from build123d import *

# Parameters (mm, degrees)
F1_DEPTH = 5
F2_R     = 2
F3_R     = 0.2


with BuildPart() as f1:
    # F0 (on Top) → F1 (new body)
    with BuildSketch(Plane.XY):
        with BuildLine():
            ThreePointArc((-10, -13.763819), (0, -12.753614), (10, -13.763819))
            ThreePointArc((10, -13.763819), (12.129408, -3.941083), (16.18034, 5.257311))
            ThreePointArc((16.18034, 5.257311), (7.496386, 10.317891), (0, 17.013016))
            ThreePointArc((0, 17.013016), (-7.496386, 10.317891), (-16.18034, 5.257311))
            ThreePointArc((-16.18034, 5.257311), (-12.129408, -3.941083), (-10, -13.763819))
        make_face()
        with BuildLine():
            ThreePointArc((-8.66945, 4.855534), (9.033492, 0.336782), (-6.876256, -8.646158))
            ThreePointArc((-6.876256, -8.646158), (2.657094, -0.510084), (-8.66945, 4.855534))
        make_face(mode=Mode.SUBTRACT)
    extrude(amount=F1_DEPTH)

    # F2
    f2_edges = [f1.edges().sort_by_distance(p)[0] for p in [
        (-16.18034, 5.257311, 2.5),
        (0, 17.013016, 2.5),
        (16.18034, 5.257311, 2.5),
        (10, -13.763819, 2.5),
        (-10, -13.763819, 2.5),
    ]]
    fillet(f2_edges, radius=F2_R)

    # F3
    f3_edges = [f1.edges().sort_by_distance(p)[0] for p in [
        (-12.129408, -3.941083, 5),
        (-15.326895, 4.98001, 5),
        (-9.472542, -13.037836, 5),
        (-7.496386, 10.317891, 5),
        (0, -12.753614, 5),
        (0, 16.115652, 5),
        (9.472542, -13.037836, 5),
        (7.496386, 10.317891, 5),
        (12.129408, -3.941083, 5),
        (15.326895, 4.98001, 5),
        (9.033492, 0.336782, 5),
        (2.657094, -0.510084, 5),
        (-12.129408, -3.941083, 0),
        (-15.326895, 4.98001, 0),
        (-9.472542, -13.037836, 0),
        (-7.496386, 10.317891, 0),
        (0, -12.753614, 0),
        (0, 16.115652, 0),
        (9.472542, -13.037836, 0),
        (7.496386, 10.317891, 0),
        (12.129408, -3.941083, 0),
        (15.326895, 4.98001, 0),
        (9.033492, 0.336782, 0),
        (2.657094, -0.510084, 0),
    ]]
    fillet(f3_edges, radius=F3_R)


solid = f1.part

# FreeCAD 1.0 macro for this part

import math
import FreeCAD as App
import Part
import Sketcher

V = App.Vector


def edges_at(feature, points):
    """Names of the edges that pass closest to the given points."""
    edges = feature.Shape.Edges
    near = lambda p: min(range(len(edges)), key=lambda i: edges[i].distToShape(Part.Vertex(*p))[0])
    return sorted({f"Edge{near(p) + 1}" for p in points})

doc = App.newDocument("Part")
body = doc.addObject("PartDesign::Body", "Body")

# Sketch on XY plane
sketch1 = body.newObject("Sketcher::SketchObject", "Sketch")
sketch1.AttachmentSupport = (doc.getObject("XY_Plane"), [""])
sketch1.MapMode = "FlatFace"
sketch1.addGeometry([
    Part.ArcOfCircle(Part.Circle(V(0, -62.753621, 0), V(0, 0, 1), 50.000007), math.radians(78.463043), math.radians(101.536957)),  # 0
    Part.ArcOfCircle(Part.Circle(V(59.682234, -19.391934, 0), V(0, 0, 1), 50.000001), math.radians(150.463041), math.radians(173.536958)),  # 1
    Part.ArcOfCircle(Part.Circle(V(36.885658, 50.768753, 0), V(0, 0, 1), 50.000016), math.radians(-137.536955), math.radians(-114.463044)),  # 2
    Part.ArcOfCircle(Part.Circle(V(-36.885658, 50.768753, 0), V(0, 0, 1), 50.000016), math.radians(-65.536956), math.radians(-42.463045)),  # 3
    Part.ArcOfCircle(Part.Circle(V(-59.682234, -19.391934, 0), V(0, 0, 1), 50.000001), math.radians(6.463042), math.radians(29.536959)),  # 4
    Part.ArcOfCircle(Part.Circle(V(-4.742642, -1.492862, 0), V(0, 0, 1), 7.464714), math.radians(-106.608264), math.radians(121.738911)),  # 5
    Part.ArcOfCircle(Part.Circle(V(-0.725535, -0.95934, 0), V(0, 0, 1), 9.844722), math.radians(-128.665563), math.radians(143.79621)),  # 6
], False)
sketch1.addConstraint([
    Sketcher.Constraint("Coincident", 0, 1, 1, 2),
    Sketcher.Constraint("Coincident", 1, 1, 2, 2),
    Sketcher.Constraint("Coincident", 2, 1, 3, 2),
    Sketcher.Constraint("Coincident", 3, 1, 4, 2),
    Sketcher.Constraint("Coincident", 4, 1, 0, 2),
    Sketcher.Constraint("Coincident", 5, 1, 6, 1),
    Sketcher.Constraint("Coincident", 6, 2, 5, 2),
    Sketcher.Constraint("Equal", 2, 3),
    Sketcher.Constraint("Equal", 1, 4),
    Sketcher.Constraint("Symmetric", 2, 3, 3, 3, -2),
    Sketcher.Constraint("Symmetric", 1, 3, 4, 3, -2),
    Sketcher.Constraint("PointOnObject", 0, 3, -2),
    Sketcher.Constraint("Radius", 1, 50.000001),
    Sketcher.Constraint("DistanceX", -1, 1, 0, 1, 10.0),
    Sketcher.Constraint("Radius", 6, 9.844722),
    Sketcher.Constraint("Radius", 0, 50.000007),
    Sketcher.Constraint("Radius", 2, 50.000016),
    Sketcher.Constraint("Radius", 5, 7.464714),
    Sketcher.Constraint("DistanceX", 5, 3, 2, 3, 41.628301),
    Sketcher.Constraint("DistanceX", 4, 3, 6, 3, 58.956699),
    Sketcher.Constraint("DistanceY", 0, 3, -1, 1, 62.753621),
    Sketcher.Constraint("DistanceX", -1, 1, 2, 3, 36.885658),
    Sketcher.Constraint("DistanceY", 6, 3, -1, 1, 0.95934),
    Sketcher.Constraint("DistanceX", -1, 1, 1, 1, 16.18034),
    Sketcher.Constraint("DistanceY", -1, 1, 1, 1, 5.257311),
    Sketcher.Constraint("DistanceX", 6, 2, -1, 1, 8.66945),
])
pad1 = body.newObject("PartDesign::Pad", "Pad")
pad1.Profile = sketch1
pad1.Length = 5
doc.recompute()

fillet = body.newObject("PartDesign::Fillet", "Fillet")
fillet.Base = (pad1, edges_at(pad1, [
    (-16.18, 5.257, 2.5),
    (0, 17.013, 2.5),
    (16.18, 5.257, 2.5),
    (10, -13.764, 2.5),
    (-10, -13.764, 2.5),
]))
fillet.Radius = 2
doc.recompute()

fillet2 = body.newObject("PartDesign::Fillet", "Fillet001")
fillet2.Base = (fillet, edges_at(fillet, [
    (-12.129, -3.941, 5),
    (-15.327, 4.98, 5),
    (-9.473, -13.038, 5),
    (-7.496, 10.318, 5),
    (0, -12.754, 5),
    (0, 16.116, 5),
    (9.473, -13.038, 5),
    (7.496, 10.318, 5),
    (12.129, -3.941, 5),
    (15.327, 4.98, 5),
    (9.033, 0.337, 5),
    (2.657, -0.51, 5),
    (-12.129, -3.941, 0),
    (-15.327, 4.98, 0),
    (-9.473, -13.038, 0),
    (-7.496, 10.318, 0),
    (0, -12.754, 0),
    (0, 16.116, 0),
    (9.473, -13.038, 0),
    (7.496, 10.318, 0),
    (12.129, -3.941, 0),
    (15.327, 4.98, 0),
    (9.033, 0.337, 0),
    (2.657, -0.51, 0),
]))
fillet2.Radius = 0.2

doc.recompute()
